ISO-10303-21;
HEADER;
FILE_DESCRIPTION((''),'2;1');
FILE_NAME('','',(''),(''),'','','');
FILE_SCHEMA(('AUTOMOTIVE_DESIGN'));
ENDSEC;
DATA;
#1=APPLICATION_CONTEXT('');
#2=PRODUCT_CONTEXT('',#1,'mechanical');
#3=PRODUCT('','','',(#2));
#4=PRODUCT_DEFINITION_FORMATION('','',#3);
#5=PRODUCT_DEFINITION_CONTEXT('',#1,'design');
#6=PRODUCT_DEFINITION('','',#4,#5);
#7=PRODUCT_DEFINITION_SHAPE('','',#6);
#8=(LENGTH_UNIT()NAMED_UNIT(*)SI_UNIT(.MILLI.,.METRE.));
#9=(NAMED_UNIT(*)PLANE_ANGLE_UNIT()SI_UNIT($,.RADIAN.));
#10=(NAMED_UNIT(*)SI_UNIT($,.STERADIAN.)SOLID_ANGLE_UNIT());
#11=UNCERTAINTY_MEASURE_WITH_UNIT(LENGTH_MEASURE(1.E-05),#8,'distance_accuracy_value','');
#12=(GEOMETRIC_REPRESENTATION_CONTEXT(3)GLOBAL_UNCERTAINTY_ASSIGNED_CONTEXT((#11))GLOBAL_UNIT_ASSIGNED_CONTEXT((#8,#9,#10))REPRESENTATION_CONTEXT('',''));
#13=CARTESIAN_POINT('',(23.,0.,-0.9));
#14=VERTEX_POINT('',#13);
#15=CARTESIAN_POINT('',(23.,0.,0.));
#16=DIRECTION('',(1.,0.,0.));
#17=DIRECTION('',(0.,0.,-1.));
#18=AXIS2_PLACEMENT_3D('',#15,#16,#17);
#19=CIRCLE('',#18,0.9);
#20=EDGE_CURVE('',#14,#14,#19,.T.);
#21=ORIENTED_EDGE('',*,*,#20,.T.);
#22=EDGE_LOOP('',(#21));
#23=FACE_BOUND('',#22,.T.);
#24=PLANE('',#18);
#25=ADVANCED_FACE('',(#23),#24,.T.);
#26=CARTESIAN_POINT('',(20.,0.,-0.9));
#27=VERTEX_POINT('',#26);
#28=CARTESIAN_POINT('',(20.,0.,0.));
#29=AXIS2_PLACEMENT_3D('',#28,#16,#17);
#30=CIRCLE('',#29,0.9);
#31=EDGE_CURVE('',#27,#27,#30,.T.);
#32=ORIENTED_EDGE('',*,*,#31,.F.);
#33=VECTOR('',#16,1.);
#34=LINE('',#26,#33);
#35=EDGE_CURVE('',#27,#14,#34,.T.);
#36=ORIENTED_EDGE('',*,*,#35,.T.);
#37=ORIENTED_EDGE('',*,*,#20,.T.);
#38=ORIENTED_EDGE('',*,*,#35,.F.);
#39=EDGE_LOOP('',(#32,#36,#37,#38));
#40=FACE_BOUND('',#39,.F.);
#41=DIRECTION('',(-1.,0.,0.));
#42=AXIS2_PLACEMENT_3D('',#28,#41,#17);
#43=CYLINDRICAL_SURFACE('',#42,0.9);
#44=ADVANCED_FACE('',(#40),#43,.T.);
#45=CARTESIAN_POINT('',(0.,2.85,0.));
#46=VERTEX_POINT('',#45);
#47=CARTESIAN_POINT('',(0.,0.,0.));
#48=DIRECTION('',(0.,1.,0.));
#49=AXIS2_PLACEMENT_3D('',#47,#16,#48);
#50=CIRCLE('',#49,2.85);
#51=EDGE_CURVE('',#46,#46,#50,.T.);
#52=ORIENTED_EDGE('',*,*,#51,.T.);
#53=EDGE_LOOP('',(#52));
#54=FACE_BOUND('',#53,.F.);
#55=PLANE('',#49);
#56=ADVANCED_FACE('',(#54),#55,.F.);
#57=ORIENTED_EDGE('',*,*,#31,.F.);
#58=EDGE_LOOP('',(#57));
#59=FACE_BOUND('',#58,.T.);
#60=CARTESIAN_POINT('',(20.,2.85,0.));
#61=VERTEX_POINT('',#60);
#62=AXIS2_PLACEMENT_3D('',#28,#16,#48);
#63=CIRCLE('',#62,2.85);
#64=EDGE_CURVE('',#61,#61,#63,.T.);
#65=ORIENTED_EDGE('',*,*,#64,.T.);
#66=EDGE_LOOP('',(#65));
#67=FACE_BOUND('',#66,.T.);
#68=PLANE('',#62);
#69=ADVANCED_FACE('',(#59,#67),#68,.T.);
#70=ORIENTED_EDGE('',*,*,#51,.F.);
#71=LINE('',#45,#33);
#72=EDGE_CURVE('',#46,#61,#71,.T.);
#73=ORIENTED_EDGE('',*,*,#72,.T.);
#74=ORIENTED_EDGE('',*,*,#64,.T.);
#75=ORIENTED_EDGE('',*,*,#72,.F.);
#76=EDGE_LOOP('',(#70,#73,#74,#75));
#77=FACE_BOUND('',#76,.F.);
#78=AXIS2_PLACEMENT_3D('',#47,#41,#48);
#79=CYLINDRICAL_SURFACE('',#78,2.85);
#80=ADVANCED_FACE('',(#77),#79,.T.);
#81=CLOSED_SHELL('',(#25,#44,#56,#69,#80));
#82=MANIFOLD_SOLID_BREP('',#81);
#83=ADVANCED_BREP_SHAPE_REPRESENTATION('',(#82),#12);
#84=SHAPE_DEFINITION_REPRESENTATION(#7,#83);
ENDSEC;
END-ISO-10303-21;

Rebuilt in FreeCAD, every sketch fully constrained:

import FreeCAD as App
import Part
import Sketcher

V = App.Vector

doc = App.newDocument("Part")
body = doc.addObject("PartDesign::Body", "Body")

# Sketch on YZ plane
sketch1 = body.newObject("Sketcher::SketchObject", "Sketch")
sketch1.AttachmentSupport = (doc.getObject("YZ_Plane"), [""])
sketch1.MapMode = "FlatFace"
sketch1.addGeometry(Part.Circle(V(0, 0, 0), V(0, 0, 1), 2.9), False)
sketch1.addConstraint([
    Sketcher.Constraint("Coincident", 0, 3, -1, 1),
    Sketcher.Constraint("Diameter", 0, 5.7),
])
pad1 = body.newObject("PartDesign::Pad", "Pad")
pad1.Profile = sketch1
pad1.Length = 20

# Sketch on YZ plane
sketch2 = body.newObject("Sketcher::SketchObject", "Sketch001")
sketch2.AttachmentSupport = (doc.getObject("YZ_Plane"), [""])
sketch2.MapMode = "FlatFace"
sketch2.AttachmentOffset = App.Placement(V(0, 0, 20), App.Rotation())
sketch2.addGeometry(Part.Circle(V(0, 0, 0), V(0, 0, 1), 0.9), False)
sketch2.addConstraint([
    Sketcher.Constraint("Coincident", 0, 3, -1, 1),
    Sketcher.Constraint("Diameter", 0, 1.8),
])
pad2 = body.newObject("PartDesign::Pad", "Pad001")
pad2.Profile = sketch2
pad2.Length = 3

doc.recompute()
